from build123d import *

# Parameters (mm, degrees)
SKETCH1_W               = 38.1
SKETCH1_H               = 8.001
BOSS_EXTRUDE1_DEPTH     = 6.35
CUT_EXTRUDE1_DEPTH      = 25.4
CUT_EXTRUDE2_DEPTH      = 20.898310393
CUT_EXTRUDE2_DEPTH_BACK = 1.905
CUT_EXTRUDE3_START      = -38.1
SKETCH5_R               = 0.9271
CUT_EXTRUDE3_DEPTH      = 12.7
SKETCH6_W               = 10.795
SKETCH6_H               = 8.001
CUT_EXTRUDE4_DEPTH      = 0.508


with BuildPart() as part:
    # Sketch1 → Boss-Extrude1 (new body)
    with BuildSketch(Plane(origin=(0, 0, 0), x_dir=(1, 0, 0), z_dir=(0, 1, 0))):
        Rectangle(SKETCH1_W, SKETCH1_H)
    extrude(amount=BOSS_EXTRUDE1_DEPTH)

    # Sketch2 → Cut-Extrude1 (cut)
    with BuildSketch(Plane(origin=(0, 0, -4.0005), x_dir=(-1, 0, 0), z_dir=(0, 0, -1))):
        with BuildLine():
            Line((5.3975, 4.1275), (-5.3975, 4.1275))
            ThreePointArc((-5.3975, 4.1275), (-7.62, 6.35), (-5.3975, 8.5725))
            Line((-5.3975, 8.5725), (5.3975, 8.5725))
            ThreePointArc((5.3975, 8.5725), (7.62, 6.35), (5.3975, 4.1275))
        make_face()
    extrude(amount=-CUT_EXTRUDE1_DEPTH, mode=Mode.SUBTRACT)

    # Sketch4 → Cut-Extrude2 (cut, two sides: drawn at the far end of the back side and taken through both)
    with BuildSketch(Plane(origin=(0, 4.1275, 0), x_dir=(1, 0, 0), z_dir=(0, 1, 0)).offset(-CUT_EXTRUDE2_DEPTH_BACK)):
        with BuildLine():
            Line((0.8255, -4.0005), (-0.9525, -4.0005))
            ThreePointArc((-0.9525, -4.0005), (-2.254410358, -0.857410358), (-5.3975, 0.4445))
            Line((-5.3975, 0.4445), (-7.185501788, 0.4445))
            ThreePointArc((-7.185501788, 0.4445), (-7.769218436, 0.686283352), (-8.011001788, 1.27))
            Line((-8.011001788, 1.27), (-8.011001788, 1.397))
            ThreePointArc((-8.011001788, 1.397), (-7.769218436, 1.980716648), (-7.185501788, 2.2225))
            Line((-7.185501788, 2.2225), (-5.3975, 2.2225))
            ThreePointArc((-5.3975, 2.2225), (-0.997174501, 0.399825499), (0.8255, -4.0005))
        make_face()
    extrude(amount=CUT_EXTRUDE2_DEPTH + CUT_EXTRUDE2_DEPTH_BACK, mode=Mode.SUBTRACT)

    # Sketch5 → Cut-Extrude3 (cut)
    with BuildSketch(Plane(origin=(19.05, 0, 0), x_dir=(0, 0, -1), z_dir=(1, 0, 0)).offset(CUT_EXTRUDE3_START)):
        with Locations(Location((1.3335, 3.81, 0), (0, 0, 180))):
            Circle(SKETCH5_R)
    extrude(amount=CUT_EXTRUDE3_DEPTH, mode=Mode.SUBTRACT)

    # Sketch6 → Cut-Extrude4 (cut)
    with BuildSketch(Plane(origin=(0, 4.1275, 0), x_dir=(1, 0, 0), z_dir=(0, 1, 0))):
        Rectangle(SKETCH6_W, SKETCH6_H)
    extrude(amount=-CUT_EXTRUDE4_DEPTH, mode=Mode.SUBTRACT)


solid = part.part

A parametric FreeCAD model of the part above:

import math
import FreeCAD as App
import Part
import Sketcher

V = App.Vector
Q = App.Units.Quantity

doc = App.newDocument("Part")
body = doc.addObject("PartDesign::Body", "Body")

# Sketch on XZ plane
sketch1 = body.newObject("Sketcher::SketchObject", "Sketch")
sketch1.AttachmentSupport = (doc.getObject("XZ_Plane"), [""])
sketch1.MapMode = "FlatFace"
sketch1.addGeometry([
    Part.LineSegment(V(-19, -4, 0), V(-19, 4, 0)),
    Part.LineSegment(V(-19, 4, 0), V(19, 4, 0)),
    Part.LineSegment(V(19, 4, 0), V(19, -4, 0)),
    Part.LineSegment(V(19, -4, 0), V(-19, -4, 0)),
], False)
sketch1.addConstraint([
    Sketcher.Constraint("Coincident", 0, 2, 1, 1),
    Sketcher.Constraint("Coincident", 1, 2, 2, 1),
    Sketcher.Constraint("Coincident", 2, 2, 3, 1),
    Sketcher.Constraint("Coincident", 3, 2, 0, 1),
    Sketcher.Constraint("Vertical", 0),
    Sketcher.Constraint("Horizontal", 1),
    Sketcher.Constraint("Vertical", 2),
    Sketcher.Constraint("Horizontal", 3),
    Sketcher.Constraint("Symmetric", 0, 2, 2, 2, -1, 1),
    Sketcher.Constraint("DistanceX", 1, 1, 1, 2, Q("1.5 in")),
    Sketcher.Constraint("DistanceY", 0, 1, 0, 2, Q("0.315 in")),
])
pad1 = body.newObject("PartDesign::Pad", "Pad")
pad1.Profile = sketch1
pad1.Length = Q("0.25 in")
pad1.Reversed = True

# Sketch on XY plane
sketch2 = body.newObject("Sketcher::SketchObject", "Sketch001")
sketch2.AttachmentSupport = (doc.getObject("XY_Plane"), [""])
sketch2.MapMode = "FlatFace"
sketch2.AttachmentOffset = App.Placement(V(0, 0, -0.1575 * 25.4), App.Rotation())
sketch2.addGeometry([
    Part.LineSegment(V(5.4, 4.1, 0), V(-5.4, 4.1, 0)),
    Part.ArcOfCircle(Part.Circle(V(-5.4, 6.3, 0), V(0, 0, 1), 2.2), math.radians(90), math.radians(270)),
    Part.LineSegment(V(-5.4, 8.6, 0), V(5.4, 8.6, 0)),
    Part.ArcOfCircle(Part.Circle(V(5.4, 6.3, 0), V(0, 0, 1), 2.2), math.radians(-90), math.radians(90)),
], False)
sketch2.addConstraint([
    Sketcher.Constraint("Tangent", 0, 2, 1, 2),
    Sketcher.Constraint("Tangent", 1, 1, 2, 1),
    Sketcher.Constraint("Tangent", 2, 2, 3, 2),
    Sketcher.Constraint("Tangent", 3, 1, 0, 1),
    Sketcher.Constraint("Horizontal", 0),
    Sketcher.Constraint("Horizontal", 2),
    Sketcher.Constraint("Radius", 1, Q("0.0875 in")),
    Sketcher.Constraint("DistanceX", 0, 2, 0, 1, Q("0.425 in")),
    Sketcher.Constraint("DistanceY", -1, 1, 1, 3, Q("0.25 in")),
    Sketcher.Constraint("DistanceX", 1, 3, -1, 1, Q("0.2125 in")),
])
pocket1 = body.newObject("PartDesign::Pocket", "Pocket")
pocket1.Profile = sketch2
pocket1.Length = Q("1 in")
pocket1.Reversed = True

# Sketch on XZ plane
sketch3 = body.newObject("Sketcher::SketchObject", "Sketch002")
sketch3.AttachmentSupport = (doc.getObject("XZ_Plane"), [""])
sketch3.MapMode = "FlatFace"
sketch3.AttachmentOffset = App.Placement(V(0, 0, -0.1625 * 25.4), App.Rotation())
sketch3.addGeometry([
    Part.LineSegment(V(-0.95, 4, 0), V(0.83, 4, 0)),  # 0
    Part.ArcOfCircle(Part.Circle(V(-5.4, 4, 0), V(0, 0, 1), 6.22), math.radians(-90), math.radians(0)),  # 1
    Part.LineSegment(V(-5.4, -2.22, 0), V(-7.19, -2.22, 0)),  # 2
    Part.ArcOfCircle(Part.Circle(V(-7.19, -1.4, 0), V(0, 0, 1), 0.83), math.radians(180), math.radians(270)),  # 3
    Part.LineSegment(V(-8.01, -1.4, 0), V(-8.01, -1.27, 0)),  # 4
    Part.ArcOfCircle(Part.Circle(V(-7.19, -1.27, 0), V(0, 0, 1), 0.83), math.radians(90), math.radians(180)),  # 5
    Part.LineSegment(V(-7.19, -0.44, 0), V(-5.4, -0.44, 0)),  # 6
    Part.ArcOfCircle(Part.Circle(V(-5.4, 4, 0), V(0, 0, 1), 4.45), math.radians(-90), math.radians(0)),  # 7
], False)
sketch3.addConstraint([
    Sketcher.Constraint("Coincident", 0, 2, 1, 2),
    Sketcher.Constraint("Tangent", 1, 1, 2, 1),
    Sketcher.Constraint("Tangent", 2, 2, 3, 2),
    Sketcher.Constraint("Tangent", 3, 1, 4, 1),
    Sketcher.Constraint("Tangent", 4, 2, 5, 2),
    Sketcher.Constraint("Tangent", 5, 1, 6, 1),
    Sketcher.Constraint("Tangent", 6, 2, 7, 1),
    Sketcher.Constraint("Coincident", 7, 2, 0, 1),
    Sketcher.Constraint("Horizontal", 0),
    Sketcher.Constraint("Horizontal", 2),
    Sketcher.Constraint("Vertical", 4),
    Sketcher.Constraint("Horizontal", 6),
    Sketcher.Constraint("Coincident", 7, 3, 1, 3),
    Sketcher.Constraint("Equal", 3, 5),
    Sketcher.Constraint("Horizontal", 7, 3, 0, 2),
    Sketcher.Constraint("Radius", 1, Q("0.245 in")),
    Sketcher.Constraint("Radius", 7, Q("0.175 in")),
    Sketcher.Constraint("Radius", 3, Q("0.0325 in")),
    Sketcher.Constraint("DistanceY", 5, 3, -1, 1, Q("0.05 in")),
    Sketcher.Constraint("DistanceX", 2, 2, 2, 1, 1.788002),
    Sketcher.Constraint("DistanceX", 1, 3, -1, 1, Q("0.2125 in")),
])
pocket2 = body.newObject("PartDesign::Pocket", "Pocket001")
pocket2.Profile = sketch3
pocket2.Type = "TwoLengths"
pocket2.Length = 20.89831
pocket2.Length2 = Q("0.075 in")

# Sketch on YZ plane
sketch4 = body.newObject("Sketcher::SketchObject", "Sketch003")
sketch4.AttachmentSupport = (doc.getObject("YZ_Plane"), [""])
sketch4.MapMode = "FlatFace"
sketch4.AttachmentOffset = App.Placement(V(0, 0, -0.75 * 25.4), App.Rotation())
sketch4.addGeometry(Part.Circle(V(3.8, -1.3, 0), V(0, 0, 1), 0.9), False)
sketch4.addConstraint([
    Sketcher.Constraint("Diameter", 0, Q("0.073 in")),
    Sketcher.Constraint("DistanceX", -1, 1, 0, 3, Q("0.15 in")),
    Sketcher.Constraint("DistanceY", 0, 3, -1, 1, Q("0.0525 in")),
])
pocket3 = body.newObject("PartDesign::Pocket", "Pocket002")
pocket3.Profile = sketch4
pocket3.Length = Q("0.5 in")
pocket3.Reversed = True

# Sketch on XZ plane
sketch5 = body.newObject("Sketcher::SketchObject", "Sketch004")
sketch5.AttachmentSupport = (doc.getObject("XZ_Plane"), [""])
sketch5.MapMode = "FlatFace"
sketch5.AttachmentOffset = App.Placement(V(0, 0, -0.1625 * 25.4), App.Rotation())
sketch5.addGeometry([
    Part.LineSegment(V(-5, -4, 0), V(-5, 4, 0)),
    Part.LineSegment(V(-5, 4, 0), V(5, 4, 0)),
    Part.LineSegment(V(5, 4, 0), V(5, -4, 0)),
    Part.LineSegment(V(5, -4, 0), V(-5, -4, 0)),
], False)
sketch5.addConstraint([
    Sketcher.Constraint("Coincident", 0, 2, 1, 1),
    Sketcher.Constraint("Coincident", 1, 2, 2, 1),
    Sketcher.Constraint("Coincident", 2, 2, 3, 1),
    Sketcher.Constraint("Coincident", 3, 2, 0, 1),
    Sketcher.Constraint("Vertical", 0),
    Sketcher.Constraint("Horizontal", 1),
    Sketcher.Constraint("Vertical", 2),
    Sketcher.Constraint("Horizontal", 3),
    Sketcher.Constraint("Symmetric", 0, 2, 2, 2, -1, 1),
    Sketcher.Constraint("DistanceX", 1, 1, 1, 2, Q("0.425 in")),
    Sketcher.Constraint("DistanceY", 0, 1, 0, 2, Q("0.315 in")),
])
pocket4 = body.newObject("PartDesign::Pocket", "Pocket003")
pocket4.Profile = sketch5
pocket4.Length = Q("0.02 in")
pocket4.Reversed = True

doc.recompute()
